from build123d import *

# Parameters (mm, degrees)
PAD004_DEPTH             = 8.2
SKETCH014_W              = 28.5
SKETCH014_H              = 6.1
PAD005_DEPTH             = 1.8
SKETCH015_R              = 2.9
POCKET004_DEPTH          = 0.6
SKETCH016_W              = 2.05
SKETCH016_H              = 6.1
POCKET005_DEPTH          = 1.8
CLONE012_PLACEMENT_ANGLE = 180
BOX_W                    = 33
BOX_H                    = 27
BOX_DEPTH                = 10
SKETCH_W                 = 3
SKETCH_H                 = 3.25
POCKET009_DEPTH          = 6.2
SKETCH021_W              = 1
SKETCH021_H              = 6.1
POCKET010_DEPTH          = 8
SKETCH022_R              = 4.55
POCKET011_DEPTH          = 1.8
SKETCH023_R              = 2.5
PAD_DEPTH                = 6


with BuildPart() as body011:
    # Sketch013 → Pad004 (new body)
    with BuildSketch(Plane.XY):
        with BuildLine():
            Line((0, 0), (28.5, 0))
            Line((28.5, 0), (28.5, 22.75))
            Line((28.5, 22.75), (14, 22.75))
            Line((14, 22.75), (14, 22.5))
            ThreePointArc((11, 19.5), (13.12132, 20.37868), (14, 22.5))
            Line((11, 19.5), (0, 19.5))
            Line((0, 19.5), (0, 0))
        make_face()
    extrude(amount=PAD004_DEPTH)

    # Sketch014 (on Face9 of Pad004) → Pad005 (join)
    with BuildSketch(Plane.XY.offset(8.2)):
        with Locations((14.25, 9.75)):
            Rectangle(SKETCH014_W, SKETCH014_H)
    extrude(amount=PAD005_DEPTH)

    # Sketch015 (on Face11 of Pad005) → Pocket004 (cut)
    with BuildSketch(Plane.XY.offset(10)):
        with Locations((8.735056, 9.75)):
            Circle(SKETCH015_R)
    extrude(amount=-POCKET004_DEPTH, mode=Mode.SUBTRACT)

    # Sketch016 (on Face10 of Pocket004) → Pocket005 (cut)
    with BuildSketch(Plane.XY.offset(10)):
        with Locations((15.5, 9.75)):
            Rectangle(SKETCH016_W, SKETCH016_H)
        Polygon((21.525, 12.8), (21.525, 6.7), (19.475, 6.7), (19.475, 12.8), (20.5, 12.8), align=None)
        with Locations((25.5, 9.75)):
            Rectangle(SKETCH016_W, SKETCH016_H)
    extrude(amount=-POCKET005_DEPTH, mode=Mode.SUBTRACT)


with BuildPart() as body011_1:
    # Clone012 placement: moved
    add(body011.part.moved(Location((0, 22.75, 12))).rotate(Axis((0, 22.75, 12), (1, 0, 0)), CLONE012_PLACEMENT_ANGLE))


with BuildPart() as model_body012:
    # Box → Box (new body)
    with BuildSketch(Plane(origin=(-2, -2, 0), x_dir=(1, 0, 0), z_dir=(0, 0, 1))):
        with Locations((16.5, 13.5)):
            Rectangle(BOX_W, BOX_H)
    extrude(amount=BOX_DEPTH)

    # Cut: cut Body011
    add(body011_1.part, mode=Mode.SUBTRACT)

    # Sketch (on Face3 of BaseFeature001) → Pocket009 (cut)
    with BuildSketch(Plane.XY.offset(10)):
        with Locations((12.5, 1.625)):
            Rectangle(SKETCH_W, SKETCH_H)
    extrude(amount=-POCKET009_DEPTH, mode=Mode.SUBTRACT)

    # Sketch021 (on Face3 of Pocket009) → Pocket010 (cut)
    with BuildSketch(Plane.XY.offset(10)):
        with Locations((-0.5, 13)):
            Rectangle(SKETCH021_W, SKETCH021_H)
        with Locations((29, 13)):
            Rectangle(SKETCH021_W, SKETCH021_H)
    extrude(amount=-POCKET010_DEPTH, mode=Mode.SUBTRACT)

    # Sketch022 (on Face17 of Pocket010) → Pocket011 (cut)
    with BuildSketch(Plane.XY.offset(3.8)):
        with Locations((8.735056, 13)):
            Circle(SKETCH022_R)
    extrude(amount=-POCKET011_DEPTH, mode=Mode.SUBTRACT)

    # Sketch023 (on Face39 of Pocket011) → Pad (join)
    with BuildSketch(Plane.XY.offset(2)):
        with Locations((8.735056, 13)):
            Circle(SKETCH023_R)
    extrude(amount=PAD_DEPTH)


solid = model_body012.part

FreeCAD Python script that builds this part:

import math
import FreeCAD as App
import Part
import Sketcher


def add_polygon(sketch, points):
    """Adds a closed chain of lines whose ends are joined by coincident constraints."""
    first, n = sketch.GeometryCount, len(points)
    for a, b in zip(points, points[1:] + points[:1]):
        sketch.addGeometry(Part.LineSegment(App.Vector(*a, 0), App.Vector(*b, 0)), False)
    for i in range(n):
        sketch.addConstraint(Sketcher.Constraint("Coincident", first + i, 2, first + (i + 1) % n, 1))

doc = App.newDocument("Part")
params = doc.addObject("Spreadsheet::Sheet", "Params")
for row, (alias, value) in enumerate([
    ("sketch1_radius", "3.000001 mm"),
    ("sketch1_width", "11 mm"),
    ("sketch1_width2", "28.5 mm"),
    ("sketch1_height", "19.5 mm"),
    ("sketch1_height2", "22.75 mm"),
    ("pad1_length", "8.2 mm"),
    ("sketch2_width", "28.5 mm"),
    ("sketch2_height", "6.1 mm"),
    ("pad2_length", "1.8 mm"),
    ("sketch3_diameter", "5.8 mm"),
    ("pocket1_length", "0.6 mm"),
    ("sketch4_height", "6.1 mm"),
    ("sketch4_width", "2.05 mm"),
    ("pocket2_length", "1.8 mm"),
    ("sketch5_width", "33 mm"),
    ("sketch5_height", "27 mm"),
    ("pad3_length", "10 mm"),
    ("sketch6_width", "3 mm"),
    ("sketch6_height", "3.25 mm"),
    ("pocket3_length", "6.2 mm"),
    ("sketch7_width", "1 mm"),
    ("sketch7_height", "6.1 mm"),
    ("pocket4_length", "8 mm"),
    ("sketch8_diameter", "9.1 mm"),
    ("pocket5_length", "1.8 mm"),
    ("sketch9_diameter", "5 mm"),
    ("pad4_length", "6 mm"),
], start=1):
    params.set(f"A{row}", alias)
    params.set(f"B{row}", "=" + value)
    params.setAlias(f"B{row}", alias)

body = doc.addObject("PartDesign::Body", "Body")

sketch1 = body.newObject("Sketcher::SketchObject", "Sketch")
sketch1.AttachmentSupport = (doc.getObject("XY_Plane"), [""])
sketch1.MapMode = "FlatFace"
sketch1.addGeometry(Part.LineSegment(App.Vector(0, 0, 0), App.Vector(28.5, 0, 0)), False)
sketch1.addGeometry(Part.LineSegment(App.Vector(28.5, 0, 0), App.Vector(28.5, 22.75, 0)), False)
sketch1.addGeometry(Part.LineSegment(App.Vector(28.5, 22.75, 0), App.Vector(14, 22.75, 0)), False)
sketch1.addGeometry(Part.LineSegment(App.Vector(14, 22.75, 0), App.Vector(14, 22.5, 0)), False)
sketch1.addGeometry(Part.ArcOfCircle(Part.Circle(App.Vector(11, 22.5, 0), App.Vector(0, 0, 1), 3), math.radians(-90), math.radians(0)), False)
sketch1.addGeometry(Part.LineSegment(App.Vector(11, 19.5, 0), App.Vector(0, 19.5, 0)), False)
sketch1.addGeometry(Part.LineSegment(App.Vector(0, 19.5, 0), App.Vector(0, 0, 0)), False)
sketch1.addConstraint(Sketcher.Constraint("Coincident", 0, 2, 1, 1))
sketch1.addConstraint(Sketcher.Constraint("Coincident", 1, 2, 2, 1))
sketch1.addConstraint(Sketcher.Constraint("Coincident", 2, 2, 3, 1))
sketch1.addConstraint(Sketcher.Constraint("Tangent", 3, 2, 4, 2))
sketch1.addConstraint(Sketcher.Constraint("Tangent", 4, 1, 5, 1))
sketch1.addConstraint(Sketcher.Constraint("Coincident", 5, 2, 6, 1))
sketch1.addConstraint(Sketcher.Constraint("Coincident", 6, 2, 0, 1))
sketch1.addConstraint(Sketcher.Constraint("Horizontal", 0))
sketch1.addConstraint(Sketcher.Constraint("Vertical", 1))
sketch1.addConstraint(Sketcher.Constraint("Horizontal", 2))
sketch1.addConstraint(Sketcher.Constraint("Vertical", 3))
sketch1.addConstraint(Sketcher.Constraint("Horizontal", 5))
sketch1.addConstraint(Sketcher.Constraint("Vertical", 6))
sketch1.addConstraint(Sketcher.Constraint("Coincident", 6, 2, -1, 1))
sketch1.addConstraint(Sketcher.Constraint("Radius", 4, 3.000001))
sketch1.addConstraint(Sketcher.Constraint("DistanceX", 5, 2, 5, 1, 11.0))
sketch1.addConstraint(Sketcher.Constraint("DistanceX", 0, 1, 0, 2, 28.5))
sketch1.addConstraint(Sketcher.Constraint("DistanceY", 6, 2, 6, 1, 19.5))
sketch1.addConstraint(Sketcher.Constraint("DistanceY", 1, 1, 1, 2, 22.75))
sketch1.setExpression("Constraints[14]", "Params.sketch1_radius")
sketch1.setExpression("Constraints[15]", "Params.sketch1_width")
sketch1.setExpression("Constraints[16]", "Params.sketch1_width2")
sketch1.setExpression("Constraints[17]", "Params.sketch1_height")
sketch1.setExpression("Constraints[18]", "Params.sketch1_height2")
pad1 = body.newObject("PartDesign::Pad", "Pad")
pad1.Profile = sketch1
pad1.setExpression("Length", "Params.pad1_length")

sketch2 = body.newObject("Sketcher::SketchObject", "Sketch001")
sketch2.AttachmentSupport = (doc.getObject("XY_Plane"), [""])
sketch2.MapMode = "FlatFace"
sketch2.AttachmentOffset = App.Placement(App.Vector(0, 0, 8.2), App.Rotation())
add_polygon(sketch2, [(0, 13), (0, 7), (28, 7), (28, 13)])
sketch2.addConstraint(Sketcher.Constraint("Vertical", 0))
sketch2.addConstraint(Sketcher.Constraint("Horizontal", 1))
sketch2.addConstraint(Sketcher.Constraint("Vertical", 2))
sketch2.addConstraint(Sketcher.Constraint("Horizontal", 3))
sketch2.addConstraint(Sketcher.Constraint("PointOnObject", 0, 2, -2))
sketch2.addConstraint(Sketcher.Constraint("DistanceX", 1, 1, 1, 2, 28.5))
sketch2.addConstraint(Sketcher.Constraint("DistanceY", 0, 2, 0, 1, 6.1))
sketch2.addConstraint(Sketcher.Constraint("DistanceY", -1, 1, 0, 2, 6.7))
sketch2.setExpression("Constraints[9]", "Params.sketch2_width")
sketch2.setExpression("Constraints[10]", "Params.sketch2_height")
pad2 = body.newObject("PartDesign::Pad", "Pad001")
pad2.Profile = sketch2
pad2.setExpression("Length", "Params.pad2_length")

sketch3 = body.newObject("Sketcher::SketchObject", "Sketch002")
sketch3.AttachmentSupport = (doc.getObject("XY_Plane"), [""])
sketch3.MapMode = "FlatFace"
sketch3.AttachmentOffset = App.Placement(App.Vector(0, 0, 10), App.Rotation())
sketch3.addGeometry(Part.Circle(App.Vector(8.7, 9.8, 0), App.Vector(0, 0, 1), 2.9), False)
sketch3.addConstraint(Sketcher.Constraint("Diameter", 0, 5.8))
sketch3.addConstraint(Sketcher.Constraint("DistanceY", -1, 1, 0, 3, 9.75))
sketch3.addConstraint(Sketcher.Constraint("DistanceX", -1, 1, 0, 3, 8.735056))
sketch3.setExpression("Constraints[0]", "Params.sketch3_diameter")
pocket1 = body.newObject("PartDesign::Pocket", "Pocket")
pocket1.Profile = sketch3
pocket1.setExpression("Length", "Params.pocket1_length")

sketch4 = body.newObject("Sketcher::SketchObject", "Sketch003")
sketch4.AttachmentSupport = (doc.getObject("XY_Plane"), [""])
sketch4.MapMode = "FlatFace"
sketch4.AttachmentOffset = App.Placement(App.Vector(0, 0, 10), App.Rotation())
add_polygon(sketch4, [(14.5, 12.8), (14.5, 6.7), (16.5, 6.7), (16.5, 12.8)])
add_polygon(sketch4, [(21.5, 6.7), (21.5, 12.8), (19.5, 12.8), (19.5, 6.7)])
add_polygon(sketch4, [(24.5, 12.8), (24.5, 6.7), (26.5, 6.7), (26.5, 12.8)])
sketch4.addConstraint(Sketcher.Constraint("Vertical", 0))
sketch4.addConstraint(Sketcher.Constraint("Horizontal", 1))
sketch4.addConstraint(Sketcher.Constraint("Vertical", 2))
sketch4.addConstraint(Sketcher.Constraint("Horizontal", 3))
sketch4.addConstraint(Sketcher.Constraint("Vertical", 4))
sketch4.addConstraint(Sketcher.Constraint("Horizontal", 5))
sketch4.addConstraint(Sketcher.Constraint("Vertical", 6))
sketch4.addConstraint(Sketcher.Constraint("Horizontal", 7))
sketch4.addConstraint(Sketcher.Constraint("Vertical", 8))
sketch4.addConstraint(Sketcher.Constraint("Horizontal", 9))
sketch4.addConstraint(Sketcher.Constraint("Vertical", 10))
sketch4.addConstraint(Sketcher.Constraint("Horizontal", 11))
sketch4.addConstraint(Sketcher.Constraint("Horizontal", 3, 2, 4, 2))
sketch4.addConstraint(Sketcher.Constraint("Horizontal", 1, 2, 6, 2))
sketch4.addConstraint(Sketcher.Constraint("Horizontal", 7, 2, 8, 2))
sketch4.addConstraint(Sketcher.Constraint("Horizontal", 5, 2, 10, 2))
sketch4.addConstraint(Sketcher.Constraint("Equal", 3, 5))
sketch4.addConstraint(Sketcher.Constraint("Equal", 7, 9))
sketch4.addConstraint(Sketcher.Constraint("DistanceY", 0, 2, 0, 1, 6.1))
sketch4.addConstraint(Sketcher.Constraint("DistanceX", 2, 2, 4, 2, 5.0))
sketch4.addConstraint(Sketcher.Constraint("DistanceX", 6, 2, 8, 2, 5.0))
sketch4.addConstraint(Sketcher.Constraint("DistanceX", 1, 1, 1, 2, 2.05))
sketch4.addConstraint(Sketcher.Constraint("DistanceY", -1, 1, 0, 2, 6.7))
sketch4.addConstraint(Sketcher.Constraint("DistanceX", -1, 1, 0, 2, 14.475))
sketch4.setExpression("Constraints[30]", "Params.sketch4_height")
sketch4.setExpression("Constraints[33]", "Params.sketch4_width")
pocket2 = body.newObject("PartDesign::Pocket", "Pocket001")
pocket2.Profile = sketch4
pocket2.setExpression("Length", "Params.pocket2_length")
body2 = doc.addObject("PartDesign::Body", "Body001")
doc.recompute()

body.Placement = App.Placement(App.Vector(0, 22.75, 12), App.Rotation(App.Vector(1, 0, 0), 180))
boolean = body2.newObject("PartDesign::Boolean", "Boolean")
boolean.Type = "Fuse"
boolean.addObjects([body])
body3 = doc.addObject("PartDesign::Body", "Body002")

sketch5 = body3.newObject("Sketcher::SketchObject", "Sketch004")
sketch5.AttachmentSupport = (doc.getObject("XY_Plane002"), [""])
sketch5.MapMode = "FlatFace"
add_polygon(sketch5, [(-2, 25), (-2, -2), (31, -2), (31, 25)])
sketch5.addConstraint(Sketcher.Constraint("Vertical", 0))
sketch5.addConstraint(Sketcher.Constraint("Horizontal", 1))
sketch5.addConstraint(Sketcher.Constraint("Vertical", 2))
sketch5.addConstraint(Sketcher.Constraint("Horizontal", 3))
sketch5.addConstraint(Sketcher.Constraint("DistanceX", 1, 1, 1, 2, 33.0))
sketch5.addConstraint(Sketcher.Constraint("DistanceY", 0, 2, 0, 1, 27.0))
sketch5.addConstraint(Sketcher.Constraint("DistanceX", 0, 2, -1, 1, 2.0))
sketch5.addConstraint(Sketcher.Constraint("DistanceY", 0, 2, -1, 1, 2.0))
sketch5.setExpression("Constraints[8]", "Params.sketch5_width")
sketch5.setExpression("Constraints[9]", "Params.sketch5_height")
pad3 = body3.newObject("PartDesign::Pad", "Pad002")
pad3.Profile = sketch5
pad3.setExpression("Length", "Params.pad3_length")
doc.recompute()

boolean2 = body3.newObject("PartDesign::Boolean", "Boolean001")
boolean2.Type = "Cut"
boolean2.addObjects([body2])

sketch6 = body3.newObject("Sketcher::SketchObject", "Sketch005")
sketch6.AttachmentSupport = (doc.getObject("XY_Plane002"), [""])
sketch6.MapMode = "FlatFace"
sketch6.AttachmentOffset = App.Placement(App.Vector(0, 0, 10), App.Rotation())
add_polygon(sketch6, [(11, 3.2), (11, 0), (14, 0), (14, 3.2)])
sketch6.addConstraint(Sketcher.Constraint("Vertical", 0))
sketch6.addConstraint(Sketcher.Constraint("Horizontal", 1))
sketch6.addConstraint(Sketcher.Constraint("Vertical", 2))
sketch6.addConstraint(Sketcher.Constraint("Horizontal", 3))
sketch6.addConstraint(Sketcher.Constraint("PointOnObject", 0, 2, -1))
sketch6.addConstraint(Sketcher.Constraint("DistanceX", 1, 1, 1, 2, 3.0))
sketch6.addConstraint(Sketcher.Constraint("DistanceX", -1, 1, 0, 2, 11.0))
sketch6.addConstraint(Sketcher.Constraint("DistanceY", 0, 2, 0, 1, 3.25))
sketch6.setExpression("Constraints[9]", "Params.sketch6_width")
sketch6.setExpression("Constraints[11]", "Params.sketch6_height")
pocket3 = body3.newObject("PartDesign::Pocket", "Pocket002")
pocket3.Profile = sketch6
pocket3.setExpression("Length", "Params.pocket3_length")

sketch7 = body3.newObject("Sketcher::SketchObject", "Sketch006")
sketch7.AttachmentSupport = (doc.getObject("XY_Plane002"), [""])
sketch7.MapMode = "FlatFace"
sketch7.AttachmentOffset = App.Placement(App.Vector(0, 0, 10), App.Rotation())
add_polygon(sketch7, [(-1, 16.1), (-1, 9.9), (0, 9.9), (0, 16.1)])
add_polygon(sketch7, [(28.5, 16.1), (28.5, 9.9), (29.5, 9.9), (29.5, 16.1)])
sketch7.addConstraint(Sketcher.Constraint("Vertical", 0))
sketch7.addConstraint(Sketcher.Constraint("Horizontal", 1))
sketch7.addConstraint(Sketcher.Constraint("Vertical", 2))
sketch7.addConstraint(Sketcher.Constraint("Horizontal", 3))
sketch7.addConstraint(Sketcher.Constraint("Vertical", 4))
sketch7.addConstraint(Sketcher.Constraint("Horizontal", 5))
sketch7.addConstraint(Sketcher.Constraint("Vertical", 6))
sketch7.addConstraint(Sketcher.Constraint("Horizontal", 7))
sketch7.addConstraint(Sketcher.Constraint("PointOnObject", 1, 2, -2))
sketch7.addConstraint(Sketcher.Constraint("Horizontal", 1, 2, 4, 2))
sketch7.addConstraint(Sketcher.Constraint("Horizontal", 3, 2, 6, 2))
sketch7.addConstraint(Sketcher.Constraint("Equal", 3, 5))
sketch7.addConstraint(Sketcher.Constraint("DistanceX", 1, 1, 1, 2, 1.0))
sketch7.addConstraint(Sketcher.Constraint("DistanceY", 0, 2, 0, 1, 6.1))
sketch7.addConstraint(Sketcher.Constraint("DistanceX", -1, 1, 4, 2, 28.5))
sketch7.addConstraint(Sketcher.Constraint("DistanceY", -1, 1, 0, 2, 9.95))
sketch7.setExpression("Constraints[20]", "Params.sketch7_width")
sketch7.setExpression("Constraints[21]", "Params.sketch7_height")
pocket4 = body3.newObject("PartDesign::Pocket", "Pocket003")
pocket4.Profile = sketch7
pocket4.setExpression("Length", "Params.pocket4_length")

sketch8 = body3.newObject("Sketcher::SketchObject", "Sketch007")
sketch8.AttachmentSupport = (doc.getObject("XY_Plane002"), [""])
sketch8.MapMode = "FlatFace"
sketch8.AttachmentOffset = App.Placement(App.Vector(0, 0, 3.8), App.Rotation())
sketch8.addGeometry(Part.Circle(App.Vector(8.7, 13, 0), App.Vector(0, 0, 1), 4.5), False)
sketch8.addConstraint(Sketcher.Constraint("Diameter", 0, 9.1))
sketch8.addConstraint(Sketcher.Constraint("DistanceY", -1, 1, 0, 3, 13.0))
sketch8.addConstraint(Sketcher.Constraint("DistanceX", -1, 1, 0, 3, 8.735056))
sketch8.setExpression("Constraints[0]", "Params.sketch8_diameter")
pocket5 = body3.newObject("PartDesign::Pocket", "Pocket004")
pocket5.Profile = sketch8
pocket5.setExpression("Length", "Params.pocket5_length")

sketch9 = body3.newObject("Sketcher::SketchObject", "Sketch008")
sketch9.AttachmentSupport = (doc.getObject("XY_Plane002"), [""])
sketch9.MapMode = "FlatFace"
sketch9.AttachmentOffset = App.Placement(App.Vector(0, 0, 2), App.Rotation())
sketch9.addGeometry(Part.Circle(App.Vector(8.7, 13, 0), App.Vector(0, 0, 1), 2.5), False)
sketch9.addConstraint(Sketcher.Constraint("Diameter", 0, 5.0))
sketch9.addConstraint(Sketcher.Constraint("DistanceY", -1, 1, 0, 3, 13.0))
sketch9.addConstraint(Sketcher.Constraint("DistanceX", -1, 1, 0, 3, 8.735056))
sketch9.setExpression("Constraints[0]", "Params.sketch9_diameter")
pad4 = body3.newObject("PartDesign::Pad", "Pad003")
pad4.Profile = sketch9
pad4.setExpression("Length", "Params.pad4_length")

doc.recompute()
